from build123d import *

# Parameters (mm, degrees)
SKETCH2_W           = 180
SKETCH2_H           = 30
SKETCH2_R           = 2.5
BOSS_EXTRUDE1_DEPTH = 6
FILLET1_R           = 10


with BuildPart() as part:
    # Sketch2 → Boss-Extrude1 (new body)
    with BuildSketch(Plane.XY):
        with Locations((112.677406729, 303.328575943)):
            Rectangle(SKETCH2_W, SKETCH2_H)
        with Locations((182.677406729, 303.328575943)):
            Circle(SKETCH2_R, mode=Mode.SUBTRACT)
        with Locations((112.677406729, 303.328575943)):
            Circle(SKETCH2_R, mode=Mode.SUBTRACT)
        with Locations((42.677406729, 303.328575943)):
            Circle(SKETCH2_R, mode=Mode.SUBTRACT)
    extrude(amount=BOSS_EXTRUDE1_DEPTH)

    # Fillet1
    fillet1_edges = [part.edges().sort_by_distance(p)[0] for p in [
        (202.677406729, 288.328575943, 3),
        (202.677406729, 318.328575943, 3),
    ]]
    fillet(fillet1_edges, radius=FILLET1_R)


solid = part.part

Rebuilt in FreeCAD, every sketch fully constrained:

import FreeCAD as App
import Part
import Sketcher
from FreeCAD import Vector
Q = App.Units.Quantity


def edges_at(feature, points):
    """Names of the edges that pass closest to the given points."""
    edges = feature.Shape.Edges
    near = lambda p: min(range(len(edges)), key=lambda i: edges[i].distToShape(Part.Vertex(*p))[0])
    return sorted({f"Edge{near(p) + 1}" for p in points})

doc = App.newDocument("Part")
body = doc.addObject("PartDesign::Body", "Body")

# Sketch on XY plane
sketch1 = body.newObject("Sketcher::SketchObject", "Sketch")
sketch1.AttachmentSupport = (doc.getObject("XY_Plane"), [""])
sketch1.MapMode = "FlatFace"
sketch1.addGeometry([
    Part.LineSegment(Vector(22.7, 318.3, 0), Vector(22.7, 288.3, 0)),  # 0
    Part.LineSegment(Vector(22.7, 288.3, 0), Vector(202.7, 288.3, 0)),  # 1
    Part.LineSegment(Vector(202.7, 288.3, 0), Vector(202.7, 318.3, 0)),  # 2
    Part.LineSegment(Vector(202.7, 318.3, 0), Vector(22.7, 318.3, 0)),  # 3
    Part.Circle(Vector(42.7, 303.3, 0), Vector(0, 0, 1), 2.5),  # 4
    Part.Circle(Vector(112.7, 303.3, 0), Vector(0, 0, 1), 2.5),  # 5
    Part.Circle(Vector(182.7, 303.3, 0), Vector(0, 0, 1), 2.5),  # 6
], False)
sketch1.addConstraint([
    Sketcher.Constraint("Coincident", 0, 2, 1, 1),
    Sketcher.Constraint("Coincident", 1, 2, 2, 1),
    Sketcher.Constraint("Coincident", 2, 2, 3, 1),
    Sketcher.Constraint("Coincident", 3, 2, 0, 1),
    Sketcher.Constraint("Vertical", 0),
    Sketcher.Constraint("Horizontal", 1),
    Sketcher.Constraint("Vertical", 2),
    Sketcher.Constraint("Horizontal", 3),
    Sketcher.Constraint("Equal", 4, 5),
    Sketcher.Constraint("Equal", 5, 6),
    Sketcher.Constraint("Horizontal", 4, 3, 5, 3),
    Sketcher.Constraint("Horizontal", 5, 3, 6, 3),
    Sketcher.Constraint("Diameter", 4, Q("5 mm")),
    Sketcher.Constraint("DistanceX", 1, 1, 1, 2, Q("180 mm")),
    Sketcher.Constraint("DistanceY", 0, 2, 0, 1, Q("30 mm")),
    Sketcher.Constraint("DistanceX", 4, 3, 5, 3, Q("70 mm")),
    Sketcher.Constraint("DistanceX", 5, 3, 6, 3, Q("70 mm")),
    Sketcher.Constraint("DistanceX", 0, 2, 4, 3, Q("20 mm")),
    Sketcher.Constraint("DistanceY", 0, 2, 4, 3, Q("15 mm")),
    Sketcher.Constraint("DistanceX", -1, 1, 4, 3, Q("42.677407 mm")),
    Sketcher.Constraint("DistanceY", -1, 1, 4, 3, Q("303.328576 mm")),
])
pad1 = body.newObject("PartDesign::Pad", "Pad")
pad1.Profile = sketch1
pad1.Length = 6
doc.recompute()

fillet = body.newObject("PartDesign::Fillet", "Fillet")
fillet.Base = (pad1, edges_at(pad1, [(202.677, 288.329, 3), (202.677, 318.329, 3)]))
fillet.Radius = 10

doc.recompute()
